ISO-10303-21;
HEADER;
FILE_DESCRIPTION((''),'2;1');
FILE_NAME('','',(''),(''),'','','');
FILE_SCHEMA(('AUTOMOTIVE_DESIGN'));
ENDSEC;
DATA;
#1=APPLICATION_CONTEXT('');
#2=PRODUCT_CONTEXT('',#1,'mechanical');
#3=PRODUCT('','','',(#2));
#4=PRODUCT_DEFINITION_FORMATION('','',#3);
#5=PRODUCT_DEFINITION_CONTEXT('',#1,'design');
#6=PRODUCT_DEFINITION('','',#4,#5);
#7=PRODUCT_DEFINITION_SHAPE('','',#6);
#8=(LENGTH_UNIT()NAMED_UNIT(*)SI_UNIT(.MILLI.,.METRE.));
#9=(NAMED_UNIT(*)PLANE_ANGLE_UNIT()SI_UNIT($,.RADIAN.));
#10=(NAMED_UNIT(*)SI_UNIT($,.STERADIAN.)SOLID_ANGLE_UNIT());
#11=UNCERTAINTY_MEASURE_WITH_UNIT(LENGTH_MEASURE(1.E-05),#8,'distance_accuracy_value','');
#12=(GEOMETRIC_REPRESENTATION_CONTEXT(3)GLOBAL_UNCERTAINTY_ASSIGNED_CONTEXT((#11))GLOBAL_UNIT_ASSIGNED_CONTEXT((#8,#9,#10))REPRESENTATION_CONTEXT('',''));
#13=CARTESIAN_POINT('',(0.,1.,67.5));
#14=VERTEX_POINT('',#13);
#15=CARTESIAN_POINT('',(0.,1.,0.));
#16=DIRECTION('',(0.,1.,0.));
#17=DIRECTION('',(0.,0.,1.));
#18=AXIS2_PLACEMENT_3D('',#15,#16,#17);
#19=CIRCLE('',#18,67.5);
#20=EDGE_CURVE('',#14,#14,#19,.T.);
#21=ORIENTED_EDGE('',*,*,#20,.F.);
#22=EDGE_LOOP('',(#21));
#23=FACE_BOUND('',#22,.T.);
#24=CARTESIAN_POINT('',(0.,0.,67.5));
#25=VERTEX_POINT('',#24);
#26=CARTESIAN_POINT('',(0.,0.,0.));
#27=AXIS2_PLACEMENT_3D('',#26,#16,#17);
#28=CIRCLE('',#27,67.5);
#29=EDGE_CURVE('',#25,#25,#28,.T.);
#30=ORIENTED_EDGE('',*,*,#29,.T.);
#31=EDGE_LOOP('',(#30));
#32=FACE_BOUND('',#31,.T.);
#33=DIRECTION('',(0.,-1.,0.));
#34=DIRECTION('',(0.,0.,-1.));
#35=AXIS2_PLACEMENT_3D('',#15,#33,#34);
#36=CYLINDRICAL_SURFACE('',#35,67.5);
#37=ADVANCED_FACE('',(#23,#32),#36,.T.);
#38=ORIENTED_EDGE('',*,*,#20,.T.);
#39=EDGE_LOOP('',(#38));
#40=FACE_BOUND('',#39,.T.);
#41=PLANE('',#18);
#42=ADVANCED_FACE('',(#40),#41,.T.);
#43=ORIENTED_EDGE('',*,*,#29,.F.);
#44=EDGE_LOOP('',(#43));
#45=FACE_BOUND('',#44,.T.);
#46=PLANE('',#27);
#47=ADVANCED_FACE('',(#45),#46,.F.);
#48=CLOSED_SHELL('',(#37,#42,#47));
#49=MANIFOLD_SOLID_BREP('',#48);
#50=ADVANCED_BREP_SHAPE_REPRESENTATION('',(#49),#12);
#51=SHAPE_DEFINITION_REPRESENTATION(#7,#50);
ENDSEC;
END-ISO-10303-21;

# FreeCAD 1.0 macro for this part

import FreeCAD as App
import Part
import Sketcher
from FreeCAD import Vector
Q = App.Units.Quantity

doc = App.newDocument("Part")
params = doc.addObject("Spreadsheet::Sheet", "Params")
for row, (alias, value) in enumerate([
    ("sketch1_diameter", "135 mm"),
    ("pad1_length", "1 mm"),
], start=1):
    params.set(f"A{row}", alias)
    params.set(f"B{row}", "=" + value)
    params.setAlias(f"B{row}", alias)

body = doc.addObject("PartDesign::Body", "Body")

# Sketch on XZ plane
sketch1 = body.newObject("Sketcher::SketchObject", "Sketch")
sketch1.AttachmentSupport = (doc.getObject("XZ_Plane"), [""])
sketch1.MapMode = "FlatFace"
sketch1.addGeometry(Part.Circle(Vector(0, 0, 0), Vector(0, 0, 1), 68), False)
sketch1.addConstraint(Sketcher.Constraint("Coincident", 0, 3, -1, 1))
sketch1.addConstraint(Sketcher.Constraint("Diameter", 0, Q("135 mm")))
sketch1.setExpression("Constraints[1]", "Params.sketch1_diameter")
pad1 = body.newObject("PartDesign::Pad", "Pad")
pad1.Profile = sketch1
pad1.setExpression("Length", "Params.pad1_length")
pad1.Reversed = True

doc.recompute()
